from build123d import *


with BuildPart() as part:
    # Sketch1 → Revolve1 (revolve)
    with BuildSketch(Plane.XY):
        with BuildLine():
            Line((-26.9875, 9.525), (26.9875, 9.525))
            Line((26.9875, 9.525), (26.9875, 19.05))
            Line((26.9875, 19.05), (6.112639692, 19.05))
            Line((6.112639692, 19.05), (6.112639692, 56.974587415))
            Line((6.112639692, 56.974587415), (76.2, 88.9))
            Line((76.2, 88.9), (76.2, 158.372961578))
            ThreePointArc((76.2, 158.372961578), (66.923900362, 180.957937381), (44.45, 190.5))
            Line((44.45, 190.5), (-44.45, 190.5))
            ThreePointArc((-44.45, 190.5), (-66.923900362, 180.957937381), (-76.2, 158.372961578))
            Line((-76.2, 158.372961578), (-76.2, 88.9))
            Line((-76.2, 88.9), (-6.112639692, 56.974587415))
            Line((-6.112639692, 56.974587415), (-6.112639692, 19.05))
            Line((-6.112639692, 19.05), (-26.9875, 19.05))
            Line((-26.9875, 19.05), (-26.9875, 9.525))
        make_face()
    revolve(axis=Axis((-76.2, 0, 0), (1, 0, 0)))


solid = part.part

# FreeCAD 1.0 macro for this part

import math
import FreeCAD as App
import Part
import Sketcher
Q = App.Units.Quantity

doc = App.newDocument("Part")
params = doc.addObject("Spreadsheet::Sheet", "Params")
for row, (alias, value) in enumerate([
    ("sketch1_width", "3.5 in"),
    ("sketch1_width2", "2.125 in"),
    ("sketch1_height", "0.375 in"),
    ("revolution_angle", "360 deg"),
], start=1):
    params.set(f"A{row}", alias)
    params.set(f"B{row}", "=" + value)
    params.setAlias(f"B{row}", alias)

body = doc.addObject("PartDesign::Body", "Body")

sketch1 = body.newObject("Sketcher::SketchObject", "Sketch")
sketch1.AttachmentSupport = (doc.getObject("XY_Plane"), [""])
sketch1.MapMode = "FlatFace"
sketch1.addGeometry([
    Part.LineSegment(App.Vector(-27, 10, 0), App.Vector(27, 10, 0)),
    Part.LineSegment(App.Vector(27, 10, 0), App.Vector(27, 19, 0)),
    Part.LineSegment(App.Vector(27, 19, 0), App.Vector(6, 19, 0)),
    Part.LineSegment(App.Vector(6, 19, 0), App.Vector(6, 57, 0)),
    Part.LineSegment(App.Vector(6, 57, 0), App.Vector(76, 89, 0)),
    Part.LineSegment(App.Vector(76, 89, 0), App.Vector(76, 158, 0)),
    Part.ArcOfCircle(Part.Circle(App.Vector(44, 158, 0), App.Vector(0, 0, 1), 32), math.radians(0), math.radians(89)),
    Part.LineSegment(App.Vector(44, 190, 0), App.Vector(-44, 190, 0)),
    Part.ArcOfCircle(Part.Circle(App.Vector(-44, 158, 0), App.Vector(0, 0, 1), 32), math.radians(91), math.radians(180)),
    Part.LineSegment(App.Vector(-76, 158, 0), App.Vector(-76, 89, 0)),
    Part.LineSegment(App.Vector(-76, 89, 0), App.Vector(-6, 57, 0)),
    Part.LineSegment(App.Vector(-6, 57, 0), App.Vector(-6, 19, 0)),
    Part.LineSegment(App.Vector(-6, 19, 0), App.Vector(-27, 19, 0)),
    Part.LineSegment(App.Vector(-27, 19, 0), App.Vector(-27, 10, 0)),
], False)
sketch1.addConstraint([
    Sketcher.Constraint("Coincident", 0, 2, 1, 1),
    Sketcher.Constraint("Coincident", 1, 2, 2, 1),
    Sketcher.Constraint("Coincident", 2, 2, 3, 1),
    Sketcher.Constraint("Coincident", 3, 2, 4, 1),
    Sketcher.Constraint("Coincident", 4, 2, 5, 1),
    Sketcher.Constraint("Coincident", 5, 2, 6, 1),
    Sketcher.Constraint("Coincident", 6, 2, 7, 1),
    Sketcher.Constraint("Coincident", 7, 2, 8, 1),
    Sketcher.Constraint("Coincident", 8, 2, 9, 1),
    Sketcher.Constraint("Coincident", 9, 2, 10, 1),
    Sketcher.Constraint("Coincident", 10, 2, 11, 1),
    Sketcher.Constraint("Coincident", 11, 2, 12, 1),
    Sketcher.Constraint("Coincident", 12, 2, 13, 1),
    Sketcher.Constraint("Coincident", 13, 2, 0, 1),
    Sketcher.Constraint("Horizontal", 0),
    Sketcher.Constraint("Vertical", 1),
    Sketcher.Constraint("Horizontal", 2),
    Sketcher.Constraint("Vertical", 3),
    Sketcher.Constraint("Vertical", 5),
    Sketcher.Constraint("Horizontal", 7),
    Sketcher.Constraint("Vertical", 9),
    Sketcher.Constraint("Vertical", 11),
    Sketcher.Constraint("Horizontal", 12),
    Sketcher.Constraint("Vertical", 13),
    Sketcher.Constraint("Equal", 6, 8),
    Sketcher.Constraint("Symmetric", 6, 3, 8, 3, -2),
    Sketcher.Constraint("Symmetric", 3, 2, 10, 2, -2),
    Sketcher.Constraint("Symmetric", 1, 2, 12, 2, -2),
    Sketcher.Constraint("Horizontal", 5, 2, 8, 2),
    Sketcher.Constraint("Horizontal", 4, 2, 9, 2),
    Sketcher.Constraint("DistanceX", 7, 2, 7, 1, Q("3.5 in")),
    Sketcher.Constraint("DistanceX", -1, 1, 4, 2, Q("3 in")),
    Sketcher.Constraint("DistanceY", 4, 2, 6, 2, Q("4 in")),
    Sketcher.Constraint("DistanceY", -1, 1, 4, 2, Q("3.5 in")),
    Sketcher.Constraint("DistanceX", 0, 1, 0, 2, Q("2.125 in")),
    Sketcher.Constraint("DistanceY", 1, 1, 1, 2, Q("0.375 in")),
    Sketcher.Constraint("DistanceY", -1, 1, 1, 2, Q("0.75 in")),
    Sketcher.Constraint("Radius", 6, Q("32.127038 mm")),
    Sketcher.Constraint("DistanceX", 2, 2, 2, 1, Q("20.87486 mm")),
    Sketcher.Constraint("DistanceY", 5, 1, 5, 2, Q("69.472962 mm")),
    Sketcher.Constraint("DistanceY", 3, 1, 3, 2, Q("37.924587 mm")),
])
sketch1.setExpression("Constraints[30]", "Params.sketch1_width")
sketch1.setExpression("Constraints[34]", "Params.sketch1_width2")
sketch1.setExpression("Constraints[35]", "Params.sketch1_height")
revolution = body.newObject("PartDesign::Revolution", "Revolution")
revolution.Profile = sketch1
revolution.ReferenceAxis = (sketch1, ["H_Axis"])
revolution.setExpression("Angle", "Params.revolution_angle")

doc.recompute()
